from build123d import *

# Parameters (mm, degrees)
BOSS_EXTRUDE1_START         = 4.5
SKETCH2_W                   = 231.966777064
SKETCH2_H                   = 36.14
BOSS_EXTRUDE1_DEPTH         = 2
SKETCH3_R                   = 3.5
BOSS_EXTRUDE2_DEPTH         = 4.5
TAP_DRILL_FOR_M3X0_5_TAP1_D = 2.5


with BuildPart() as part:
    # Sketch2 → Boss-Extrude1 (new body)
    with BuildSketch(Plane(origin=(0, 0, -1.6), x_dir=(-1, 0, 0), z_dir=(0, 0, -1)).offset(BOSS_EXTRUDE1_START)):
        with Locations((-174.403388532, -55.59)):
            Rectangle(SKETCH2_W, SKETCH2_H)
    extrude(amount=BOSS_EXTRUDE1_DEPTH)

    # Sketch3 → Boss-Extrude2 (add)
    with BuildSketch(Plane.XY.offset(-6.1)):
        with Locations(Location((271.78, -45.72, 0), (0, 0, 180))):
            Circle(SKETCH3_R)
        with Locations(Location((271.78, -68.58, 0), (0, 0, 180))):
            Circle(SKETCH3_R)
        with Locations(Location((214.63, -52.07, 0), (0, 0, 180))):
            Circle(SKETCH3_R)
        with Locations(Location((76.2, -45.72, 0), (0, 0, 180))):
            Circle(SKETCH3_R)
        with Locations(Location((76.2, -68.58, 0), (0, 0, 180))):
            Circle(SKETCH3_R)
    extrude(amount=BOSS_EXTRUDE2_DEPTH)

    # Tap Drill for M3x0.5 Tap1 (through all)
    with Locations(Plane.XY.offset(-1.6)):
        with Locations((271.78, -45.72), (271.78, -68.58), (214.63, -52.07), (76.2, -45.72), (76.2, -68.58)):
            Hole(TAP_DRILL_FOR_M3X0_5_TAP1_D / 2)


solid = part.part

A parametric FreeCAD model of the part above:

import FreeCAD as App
import Part
import Sketcher
Q = App.Units.Quantity


def add_polygon(sketch, points):
    """Adds a closed chain of lines whose ends are joined by coincident constraints."""
    first, n = sketch.GeometryCount, len(points)
    for a, b in zip(points, points[1:] + points[:1]):
        sketch.addGeometry(Part.LineSegment(App.Vector(*a, 0), App.Vector(*b, 0)), False)
    for i in range(n):
        sketch.addConstraint(Sketcher.Constraint("Coincident", first + i, 2, first + (i + 1) % n, 1))

doc = App.newDocument("Part")
body = doc.addObject("PartDesign::Body", "Body")

sketch1 = body.newObject("Sketcher::SketchObject", "Sketch")
sketch1.AttachmentSupport = (doc.getObject("XY_Plane"), [""])
sketch1.MapMode = "FlatFace"
sketch1.AttachmentOffset = App.Placement(App.Vector(0, 0, -6.1), App.Rotation())
add_polygon(sketch1, [(290.386777, -37.52), (290.386777, -73.66), (58.42, -73.66), (58.42, -37.52)])
sketch1.addConstraint([
    Sketcher.Constraint("Vertical", 0),
    Sketcher.Constraint("Horizontal", 1),
    Sketcher.Constraint("Vertical", 2),
    Sketcher.Constraint("Horizontal", 3),
    Sketcher.Constraint("DistanceY", 0, 2, 0, 1, Q("36.14 mm")),
    Sketcher.Constraint("DistanceY", 0, 2, -1, 1, Q("73.66 mm")),
    Sketcher.Constraint("DistanceX", -1, 1, 1, 2, Q("58.42 mm")),
    Sketcher.Constraint("DistanceX", 1, 2, 1, 1, Q("231.966777 mm")),
])
pad1 = body.newObject("PartDesign::Pad", "Pad")
pad1.Profile = sketch1
pad1.Length = 2
pad1.Reversed = True

sketch2 = body.newObject("Sketcher::SketchObject", "Sketch001")
sketch2.AttachmentSupport = (doc.getObject("XY_Plane"), [""])
sketch2.MapMode = "FlatFace"
sketch2.AttachmentOffset = App.Placement(App.Vector(0, 0, -6.1), App.Rotation())
sketch2.addGeometry([
    Part.Circle(App.Vector(271.78, -45.72, 0), App.Vector(0, 0, 1), 3.5),
    Part.Circle(App.Vector(271.78, -68.58, 0), App.Vector(0, 0, 1), 3.5),
    Part.Circle(App.Vector(214.63, -52.07, 0), App.Vector(0, 0, 1), 3.5),
    Part.Circle(App.Vector(76.2, -45.72, 0), App.Vector(0, 0, 1), 3.5),
    Part.Circle(App.Vector(76.2, -68.58, 0), App.Vector(0, 0, 1), 3.5),
], False)
sketch2.addConstraint([
    Sketcher.Constraint("Equal", 0, 1),
    Sketcher.Constraint("Equal", 1, 2),
    Sketcher.Constraint("Equal", 2, 3),
    Sketcher.Constraint("Equal", 3, 4),
    Sketcher.Constraint("Horizontal", 0, 3, 3, 3),
    Sketcher.Constraint("Horizontal", 1, 3, 4, 3),
    Sketcher.Constraint("Vertical", 0, 3, 1, 3),
    Sketcher.Constraint("Vertical", 3, 3, 4, 3),
    Sketcher.Constraint("Diameter", 0, Q("7 mm")),
    Sketcher.Constraint("DistanceX", -1, 1, 3, 3, Q("76.2 mm")),
    Sketcher.Constraint("DistanceX", -1, 1, 0, 3, Q("271.78 mm")),
    Sketcher.Constraint("DistanceY", 0, 3, -1, 1, Q("45.72 mm")),
    Sketcher.Constraint("DistanceY", 1, 3, -1, 1, Q("68.58 mm")),
    Sketcher.Constraint("DistanceX", -1, 1, 2, 3, Q("214.63 mm")),
    Sketcher.Constraint("DistanceY", 2, 3, -1, 1, Q("52.07 mm")),
])
pad2 = body.newObject("PartDesign::Pad", "Pad001")
pad2.Profile = sketch2
pad2.Length = 4.5

sketch3 = body.newObject("Sketcher::SketchObject", "Sketch002")
sketch3.AttachmentSupport = (doc.getObject("XY_Plane"), [""])
sketch3.MapMode = "FlatFace"
sketch3.AttachmentOffset = App.Placement(App.Vector(0, 0, -1.6), App.Rotation())
sketch3.addGeometry([
    Part.Circle(App.Vector(271.78, -45.72, 0), App.Vector(0, 0, 1), 1.25),
    Part.Circle(App.Vector(271.78, -68.58, 0), App.Vector(0, 0, 1), 1.25),
    Part.Circle(App.Vector(214.63, -52.07, 0), App.Vector(0, 0, 1), 1.25),
    Part.Circle(App.Vector(76.2, -45.72, 0), App.Vector(0, 0, 1), 1.25),
    Part.Circle(App.Vector(76.2, -68.58, 0), App.Vector(0, 0, 1), 1.25),
], False)
sketch3.addConstraint([
    Sketcher.Constraint("Equal", 0, 1),
    Sketcher.Constraint("Equal", 1, 2),
    Sketcher.Constraint("Equal", 2, 3),
    Sketcher.Constraint("Equal", 3, 4),
    Sketcher.Constraint("Horizontal", 0, 3, 3, 3),
    Sketcher.Constraint("Horizontal", 1, 3, 4, 3),
    Sketcher.Constraint("Vertical", 0, 3, 1, 3),
    Sketcher.Constraint("Vertical", 3, 3, 4, 3),
    Sketcher.Constraint("Diameter", 0, Q("2.5 mm")),
    Sketcher.Constraint("DistanceX", -1, 1, 3, 3, Q("76.2 mm")),
    Sketcher.Constraint("DistanceX", -1, 1, 0, 3, Q("271.78 mm")),
    Sketcher.Constraint("DistanceY", 0, 3, -1, 1, Q("45.72 mm")),
    Sketcher.Constraint("DistanceY", 1, 3, -1, 1, Q("68.58 mm")),
    Sketcher.Constraint("DistanceX", -1, 1, 2, 3, Q("214.63 mm")),
    Sketcher.Constraint("DistanceY", 2, 3, -1, 1, Q("52.07 mm")),
])
doc.recompute()
hole = body.newObject("PartDesign::Hole", "Hole")
hole.Profile = sketch3
hole.ThreadType = "None"
hole.Diameter = 2.5
hole.DepthType = "ThroughAll"

doc.recompute()
